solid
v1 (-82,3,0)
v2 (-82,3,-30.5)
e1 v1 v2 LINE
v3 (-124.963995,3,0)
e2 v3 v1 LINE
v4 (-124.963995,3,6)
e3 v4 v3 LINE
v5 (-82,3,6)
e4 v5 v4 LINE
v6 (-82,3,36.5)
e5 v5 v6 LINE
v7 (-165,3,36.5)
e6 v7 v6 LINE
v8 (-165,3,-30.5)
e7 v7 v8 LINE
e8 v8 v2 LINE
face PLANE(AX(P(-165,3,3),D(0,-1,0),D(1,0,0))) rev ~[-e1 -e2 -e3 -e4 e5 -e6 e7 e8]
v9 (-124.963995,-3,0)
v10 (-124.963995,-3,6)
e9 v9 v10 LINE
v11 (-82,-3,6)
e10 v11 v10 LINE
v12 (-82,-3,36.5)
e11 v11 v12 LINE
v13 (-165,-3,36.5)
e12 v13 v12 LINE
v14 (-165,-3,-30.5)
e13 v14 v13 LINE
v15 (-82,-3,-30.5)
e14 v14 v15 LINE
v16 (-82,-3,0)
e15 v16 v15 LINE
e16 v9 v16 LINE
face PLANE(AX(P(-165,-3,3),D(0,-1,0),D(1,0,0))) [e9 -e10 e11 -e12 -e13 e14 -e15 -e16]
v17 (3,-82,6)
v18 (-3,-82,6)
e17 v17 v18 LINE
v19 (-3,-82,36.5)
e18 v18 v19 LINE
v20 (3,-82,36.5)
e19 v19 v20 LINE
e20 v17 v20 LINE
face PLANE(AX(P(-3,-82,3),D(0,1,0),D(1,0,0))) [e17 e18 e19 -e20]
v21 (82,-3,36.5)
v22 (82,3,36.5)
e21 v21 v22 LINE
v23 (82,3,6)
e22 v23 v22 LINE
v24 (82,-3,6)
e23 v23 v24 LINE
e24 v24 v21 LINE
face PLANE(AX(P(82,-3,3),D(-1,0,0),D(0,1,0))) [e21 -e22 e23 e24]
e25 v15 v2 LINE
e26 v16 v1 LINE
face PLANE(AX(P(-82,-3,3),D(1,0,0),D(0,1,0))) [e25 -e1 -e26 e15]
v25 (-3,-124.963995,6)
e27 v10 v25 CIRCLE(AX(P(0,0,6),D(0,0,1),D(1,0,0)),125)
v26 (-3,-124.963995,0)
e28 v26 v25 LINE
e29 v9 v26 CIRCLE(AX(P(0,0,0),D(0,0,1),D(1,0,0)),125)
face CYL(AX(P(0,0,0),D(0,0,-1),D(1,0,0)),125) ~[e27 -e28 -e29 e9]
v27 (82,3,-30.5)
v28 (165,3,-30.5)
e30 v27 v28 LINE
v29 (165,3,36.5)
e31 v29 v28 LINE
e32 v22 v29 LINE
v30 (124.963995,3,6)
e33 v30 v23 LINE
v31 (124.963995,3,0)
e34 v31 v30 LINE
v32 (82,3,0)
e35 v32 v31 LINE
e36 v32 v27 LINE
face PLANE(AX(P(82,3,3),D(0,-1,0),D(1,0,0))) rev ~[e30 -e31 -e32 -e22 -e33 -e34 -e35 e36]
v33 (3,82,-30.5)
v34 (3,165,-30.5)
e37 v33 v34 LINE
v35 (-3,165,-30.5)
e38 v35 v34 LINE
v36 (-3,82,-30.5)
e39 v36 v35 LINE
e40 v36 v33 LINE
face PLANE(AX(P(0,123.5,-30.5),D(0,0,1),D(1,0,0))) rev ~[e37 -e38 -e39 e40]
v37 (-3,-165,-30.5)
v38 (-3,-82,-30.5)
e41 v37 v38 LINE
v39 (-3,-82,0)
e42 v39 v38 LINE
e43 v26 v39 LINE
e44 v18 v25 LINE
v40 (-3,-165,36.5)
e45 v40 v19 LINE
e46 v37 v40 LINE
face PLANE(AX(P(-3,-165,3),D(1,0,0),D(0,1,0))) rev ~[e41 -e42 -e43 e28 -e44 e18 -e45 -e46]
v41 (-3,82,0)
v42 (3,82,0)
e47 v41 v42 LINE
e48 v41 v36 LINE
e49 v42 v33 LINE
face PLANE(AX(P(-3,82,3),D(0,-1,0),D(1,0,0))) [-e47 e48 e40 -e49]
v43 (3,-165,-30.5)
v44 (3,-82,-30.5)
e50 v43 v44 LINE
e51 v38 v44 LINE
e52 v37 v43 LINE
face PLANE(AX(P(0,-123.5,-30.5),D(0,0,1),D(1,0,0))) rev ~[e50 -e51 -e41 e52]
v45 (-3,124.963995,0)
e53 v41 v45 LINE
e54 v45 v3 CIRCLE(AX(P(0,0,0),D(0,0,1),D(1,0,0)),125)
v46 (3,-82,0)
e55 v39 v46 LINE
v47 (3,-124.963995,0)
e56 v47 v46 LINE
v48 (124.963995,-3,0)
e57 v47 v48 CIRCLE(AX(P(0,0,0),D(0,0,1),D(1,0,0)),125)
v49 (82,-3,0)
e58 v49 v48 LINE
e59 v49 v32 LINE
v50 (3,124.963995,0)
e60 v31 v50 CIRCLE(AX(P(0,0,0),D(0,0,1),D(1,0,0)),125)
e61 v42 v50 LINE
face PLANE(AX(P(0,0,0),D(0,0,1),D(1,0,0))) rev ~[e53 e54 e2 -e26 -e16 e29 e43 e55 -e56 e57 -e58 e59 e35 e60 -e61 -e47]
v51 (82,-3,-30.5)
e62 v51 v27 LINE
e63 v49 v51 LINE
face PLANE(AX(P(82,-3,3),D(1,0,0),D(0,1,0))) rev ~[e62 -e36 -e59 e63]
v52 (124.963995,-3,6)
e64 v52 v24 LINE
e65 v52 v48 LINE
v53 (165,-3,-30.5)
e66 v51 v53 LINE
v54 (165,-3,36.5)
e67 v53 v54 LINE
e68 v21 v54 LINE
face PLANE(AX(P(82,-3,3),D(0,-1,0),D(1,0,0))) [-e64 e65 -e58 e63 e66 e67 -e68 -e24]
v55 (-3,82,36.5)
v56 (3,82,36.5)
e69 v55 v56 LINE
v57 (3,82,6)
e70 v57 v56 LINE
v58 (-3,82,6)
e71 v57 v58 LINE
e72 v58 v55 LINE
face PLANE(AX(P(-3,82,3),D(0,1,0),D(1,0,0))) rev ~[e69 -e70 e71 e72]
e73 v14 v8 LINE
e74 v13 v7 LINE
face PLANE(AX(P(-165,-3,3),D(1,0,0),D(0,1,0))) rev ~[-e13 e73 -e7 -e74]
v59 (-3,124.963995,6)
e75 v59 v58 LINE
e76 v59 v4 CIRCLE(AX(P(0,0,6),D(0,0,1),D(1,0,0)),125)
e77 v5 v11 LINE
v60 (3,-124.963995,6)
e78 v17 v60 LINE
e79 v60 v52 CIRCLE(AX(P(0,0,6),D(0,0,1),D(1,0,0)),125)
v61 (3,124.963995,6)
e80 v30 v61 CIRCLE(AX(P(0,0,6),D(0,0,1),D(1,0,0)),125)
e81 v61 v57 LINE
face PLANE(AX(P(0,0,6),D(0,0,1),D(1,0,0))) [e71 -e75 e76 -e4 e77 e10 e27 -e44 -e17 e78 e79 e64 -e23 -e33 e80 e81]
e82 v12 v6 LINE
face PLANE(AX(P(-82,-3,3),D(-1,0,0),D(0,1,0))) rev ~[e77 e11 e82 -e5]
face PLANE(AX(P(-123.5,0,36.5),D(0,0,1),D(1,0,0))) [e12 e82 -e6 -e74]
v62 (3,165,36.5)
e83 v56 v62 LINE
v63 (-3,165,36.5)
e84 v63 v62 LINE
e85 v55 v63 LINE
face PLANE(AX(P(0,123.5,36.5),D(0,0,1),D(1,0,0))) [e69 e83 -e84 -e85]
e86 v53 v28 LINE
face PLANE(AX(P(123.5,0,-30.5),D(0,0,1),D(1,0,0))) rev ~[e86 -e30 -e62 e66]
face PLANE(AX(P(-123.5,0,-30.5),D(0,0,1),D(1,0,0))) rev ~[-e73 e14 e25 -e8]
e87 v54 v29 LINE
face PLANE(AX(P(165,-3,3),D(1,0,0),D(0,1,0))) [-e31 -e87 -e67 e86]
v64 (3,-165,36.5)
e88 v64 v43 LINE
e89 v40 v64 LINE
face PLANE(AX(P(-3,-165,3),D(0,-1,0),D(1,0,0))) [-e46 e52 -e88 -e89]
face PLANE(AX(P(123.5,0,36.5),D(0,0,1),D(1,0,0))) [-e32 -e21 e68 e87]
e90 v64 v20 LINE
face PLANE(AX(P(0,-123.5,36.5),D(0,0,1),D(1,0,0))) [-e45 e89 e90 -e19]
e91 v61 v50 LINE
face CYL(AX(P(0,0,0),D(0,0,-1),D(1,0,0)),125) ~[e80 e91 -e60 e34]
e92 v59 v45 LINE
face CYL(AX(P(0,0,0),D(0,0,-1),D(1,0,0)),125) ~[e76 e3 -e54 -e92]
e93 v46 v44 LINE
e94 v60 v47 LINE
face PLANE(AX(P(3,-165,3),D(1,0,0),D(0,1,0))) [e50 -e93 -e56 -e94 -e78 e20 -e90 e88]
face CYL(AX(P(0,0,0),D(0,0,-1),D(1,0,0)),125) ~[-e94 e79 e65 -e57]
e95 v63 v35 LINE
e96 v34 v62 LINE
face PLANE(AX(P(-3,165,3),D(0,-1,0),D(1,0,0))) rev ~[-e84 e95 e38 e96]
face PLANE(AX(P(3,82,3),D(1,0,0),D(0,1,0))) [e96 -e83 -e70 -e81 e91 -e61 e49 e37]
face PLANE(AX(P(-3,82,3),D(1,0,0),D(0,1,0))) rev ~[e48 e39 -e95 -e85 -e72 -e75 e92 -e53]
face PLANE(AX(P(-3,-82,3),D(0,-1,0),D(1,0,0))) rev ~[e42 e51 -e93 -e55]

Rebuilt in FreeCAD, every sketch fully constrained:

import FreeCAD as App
import Part
import Sketcher

V = App.Vector


def add_polygon(sketch, points):
    """Adds a closed chain of lines whose ends are joined by coincident constraints."""
    first, n = sketch.GeometryCount, len(points)
    for a, b in zip(points, points[1:] + points[:1]):
        sketch.addGeometry(Part.LineSegment(App.Vector(*a, 0), App.Vector(*b, 0)), False)
    for i in range(n):
        sketch.addConstraint(Sketcher.Constraint("Coincident", first + i, 2, first + (i + 1) % n, 1))

doc = App.newDocument("Part")
body = doc.addObject("PartDesign::Body", "Body")

# Sketch on XY plane
sketch1 = body.newObject("Sketcher::SketchObject", "Sketch")
sketch1.AttachmentSupport = (doc.getObject("XY_Plane"), [""])
sketch1.MapMode = "FlatFace"
sketch1.addGeometry(Part.Circle(V(0, 0, 0), V(0, 0, 1), 125), False)
sketch1.addConstraint([
    Sketcher.Constraint("Coincident", 0, 3, -1, 1),
    Sketcher.Constraint("Diameter", 0, 250.0),
])
pad1 = body.newObject("PartDesign::Pad", "Pad")
pad1.Profile = sketch1
pad1.Length = 6

# Sketch on XY plane
sketch2 = body.newObject("Sketcher::SketchObject", "Sketch001")
sketch2.AttachmentSupport = (doc.getObject("XY_Plane"), [""])
sketch2.MapMode = "FlatFace"
sketch2.AttachmentOffset = App.Placement(V(0, 0, 3), App.Rotation())
add_polygon(sketch2, [(-165, 3), (-165, -3), (-82, -3), (-82, 3)])  # lines 0-3
add_polygon(sketch2, [(-3, 165), (-3, 82), (3, 82), (3, 165)])  # lines 4-7
add_polygon(sketch2, [(82, 3), (82, -3), (165, -3), (165, 3)])  # lines 8-11
add_polygon(sketch2, [(-3, -82), (-3, -165), (3, -165), (3, -82)])  # lines 12-15
sketch2.addConstraint([
    Sketcher.Constraint("Vertical", 0),
    Sketcher.Constraint("Horizontal", 1),
    Sketcher.Constraint("Vertical", 2),
    Sketcher.Constraint("Horizontal", 3),
    Sketcher.Constraint("Vertical", 4),
    Sketcher.Constraint("Horizontal", 5),
    Sketcher.Constraint("Vertical", 6),
    Sketcher.Constraint("Horizontal", 7),
    Sketcher.Constraint("Vertical", 8),
    Sketcher.Constraint("Horizontal", 9),
    Sketcher.Constraint("Vertical", 10),
    Sketcher.Constraint("Horizontal", 11),
    Sketcher.Constraint("Vertical", 12),
    Sketcher.Constraint("Horizontal", 13),
    Sketcher.Constraint("Vertical", 14),
    Sketcher.Constraint("Horizontal", 15),
    Sketcher.Constraint("Symmetric", 2, 2, 8, 2, -1, 1),
    Sketcher.Constraint("Symmetric", 0, 2, 10, 2, -1, 1),
    Sketcher.Constraint("Symmetric", 6, 2, 12, 2, -1, 1),
    Sketcher.Constraint("Symmetric", 4, 2, 14, 2, -1, 1),
    Sketcher.Constraint("Horizontal", 1, 2, 8, 2),
    Sketcher.Constraint("Vertical", 7, 2, 12, 2),
    Sketcher.Constraint("Equal", 15, 0),
    Sketcher.Constraint("Equal", 11, 4),
    Sketcher.Constraint("DistanceX", 1, 1, 1, 2, 83.0),
    Sketcher.Constraint("DistanceX", 5, 1, 5, 2, 6.0),
    Sketcher.Constraint("DistanceX", 0, 2, -1, 1, 165.0),
    Sketcher.Constraint("DistanceY", -1, 1, 4, 2, 82.0),
])
pad2 = body.newObject("PartDesign::Pad", "Pad001")
pad2.Profile = sketch2
pad2.Type = "TwoLengths"
pad2.Length = 33.5
pad2.Length2 = 33.5

doc.recompute()
